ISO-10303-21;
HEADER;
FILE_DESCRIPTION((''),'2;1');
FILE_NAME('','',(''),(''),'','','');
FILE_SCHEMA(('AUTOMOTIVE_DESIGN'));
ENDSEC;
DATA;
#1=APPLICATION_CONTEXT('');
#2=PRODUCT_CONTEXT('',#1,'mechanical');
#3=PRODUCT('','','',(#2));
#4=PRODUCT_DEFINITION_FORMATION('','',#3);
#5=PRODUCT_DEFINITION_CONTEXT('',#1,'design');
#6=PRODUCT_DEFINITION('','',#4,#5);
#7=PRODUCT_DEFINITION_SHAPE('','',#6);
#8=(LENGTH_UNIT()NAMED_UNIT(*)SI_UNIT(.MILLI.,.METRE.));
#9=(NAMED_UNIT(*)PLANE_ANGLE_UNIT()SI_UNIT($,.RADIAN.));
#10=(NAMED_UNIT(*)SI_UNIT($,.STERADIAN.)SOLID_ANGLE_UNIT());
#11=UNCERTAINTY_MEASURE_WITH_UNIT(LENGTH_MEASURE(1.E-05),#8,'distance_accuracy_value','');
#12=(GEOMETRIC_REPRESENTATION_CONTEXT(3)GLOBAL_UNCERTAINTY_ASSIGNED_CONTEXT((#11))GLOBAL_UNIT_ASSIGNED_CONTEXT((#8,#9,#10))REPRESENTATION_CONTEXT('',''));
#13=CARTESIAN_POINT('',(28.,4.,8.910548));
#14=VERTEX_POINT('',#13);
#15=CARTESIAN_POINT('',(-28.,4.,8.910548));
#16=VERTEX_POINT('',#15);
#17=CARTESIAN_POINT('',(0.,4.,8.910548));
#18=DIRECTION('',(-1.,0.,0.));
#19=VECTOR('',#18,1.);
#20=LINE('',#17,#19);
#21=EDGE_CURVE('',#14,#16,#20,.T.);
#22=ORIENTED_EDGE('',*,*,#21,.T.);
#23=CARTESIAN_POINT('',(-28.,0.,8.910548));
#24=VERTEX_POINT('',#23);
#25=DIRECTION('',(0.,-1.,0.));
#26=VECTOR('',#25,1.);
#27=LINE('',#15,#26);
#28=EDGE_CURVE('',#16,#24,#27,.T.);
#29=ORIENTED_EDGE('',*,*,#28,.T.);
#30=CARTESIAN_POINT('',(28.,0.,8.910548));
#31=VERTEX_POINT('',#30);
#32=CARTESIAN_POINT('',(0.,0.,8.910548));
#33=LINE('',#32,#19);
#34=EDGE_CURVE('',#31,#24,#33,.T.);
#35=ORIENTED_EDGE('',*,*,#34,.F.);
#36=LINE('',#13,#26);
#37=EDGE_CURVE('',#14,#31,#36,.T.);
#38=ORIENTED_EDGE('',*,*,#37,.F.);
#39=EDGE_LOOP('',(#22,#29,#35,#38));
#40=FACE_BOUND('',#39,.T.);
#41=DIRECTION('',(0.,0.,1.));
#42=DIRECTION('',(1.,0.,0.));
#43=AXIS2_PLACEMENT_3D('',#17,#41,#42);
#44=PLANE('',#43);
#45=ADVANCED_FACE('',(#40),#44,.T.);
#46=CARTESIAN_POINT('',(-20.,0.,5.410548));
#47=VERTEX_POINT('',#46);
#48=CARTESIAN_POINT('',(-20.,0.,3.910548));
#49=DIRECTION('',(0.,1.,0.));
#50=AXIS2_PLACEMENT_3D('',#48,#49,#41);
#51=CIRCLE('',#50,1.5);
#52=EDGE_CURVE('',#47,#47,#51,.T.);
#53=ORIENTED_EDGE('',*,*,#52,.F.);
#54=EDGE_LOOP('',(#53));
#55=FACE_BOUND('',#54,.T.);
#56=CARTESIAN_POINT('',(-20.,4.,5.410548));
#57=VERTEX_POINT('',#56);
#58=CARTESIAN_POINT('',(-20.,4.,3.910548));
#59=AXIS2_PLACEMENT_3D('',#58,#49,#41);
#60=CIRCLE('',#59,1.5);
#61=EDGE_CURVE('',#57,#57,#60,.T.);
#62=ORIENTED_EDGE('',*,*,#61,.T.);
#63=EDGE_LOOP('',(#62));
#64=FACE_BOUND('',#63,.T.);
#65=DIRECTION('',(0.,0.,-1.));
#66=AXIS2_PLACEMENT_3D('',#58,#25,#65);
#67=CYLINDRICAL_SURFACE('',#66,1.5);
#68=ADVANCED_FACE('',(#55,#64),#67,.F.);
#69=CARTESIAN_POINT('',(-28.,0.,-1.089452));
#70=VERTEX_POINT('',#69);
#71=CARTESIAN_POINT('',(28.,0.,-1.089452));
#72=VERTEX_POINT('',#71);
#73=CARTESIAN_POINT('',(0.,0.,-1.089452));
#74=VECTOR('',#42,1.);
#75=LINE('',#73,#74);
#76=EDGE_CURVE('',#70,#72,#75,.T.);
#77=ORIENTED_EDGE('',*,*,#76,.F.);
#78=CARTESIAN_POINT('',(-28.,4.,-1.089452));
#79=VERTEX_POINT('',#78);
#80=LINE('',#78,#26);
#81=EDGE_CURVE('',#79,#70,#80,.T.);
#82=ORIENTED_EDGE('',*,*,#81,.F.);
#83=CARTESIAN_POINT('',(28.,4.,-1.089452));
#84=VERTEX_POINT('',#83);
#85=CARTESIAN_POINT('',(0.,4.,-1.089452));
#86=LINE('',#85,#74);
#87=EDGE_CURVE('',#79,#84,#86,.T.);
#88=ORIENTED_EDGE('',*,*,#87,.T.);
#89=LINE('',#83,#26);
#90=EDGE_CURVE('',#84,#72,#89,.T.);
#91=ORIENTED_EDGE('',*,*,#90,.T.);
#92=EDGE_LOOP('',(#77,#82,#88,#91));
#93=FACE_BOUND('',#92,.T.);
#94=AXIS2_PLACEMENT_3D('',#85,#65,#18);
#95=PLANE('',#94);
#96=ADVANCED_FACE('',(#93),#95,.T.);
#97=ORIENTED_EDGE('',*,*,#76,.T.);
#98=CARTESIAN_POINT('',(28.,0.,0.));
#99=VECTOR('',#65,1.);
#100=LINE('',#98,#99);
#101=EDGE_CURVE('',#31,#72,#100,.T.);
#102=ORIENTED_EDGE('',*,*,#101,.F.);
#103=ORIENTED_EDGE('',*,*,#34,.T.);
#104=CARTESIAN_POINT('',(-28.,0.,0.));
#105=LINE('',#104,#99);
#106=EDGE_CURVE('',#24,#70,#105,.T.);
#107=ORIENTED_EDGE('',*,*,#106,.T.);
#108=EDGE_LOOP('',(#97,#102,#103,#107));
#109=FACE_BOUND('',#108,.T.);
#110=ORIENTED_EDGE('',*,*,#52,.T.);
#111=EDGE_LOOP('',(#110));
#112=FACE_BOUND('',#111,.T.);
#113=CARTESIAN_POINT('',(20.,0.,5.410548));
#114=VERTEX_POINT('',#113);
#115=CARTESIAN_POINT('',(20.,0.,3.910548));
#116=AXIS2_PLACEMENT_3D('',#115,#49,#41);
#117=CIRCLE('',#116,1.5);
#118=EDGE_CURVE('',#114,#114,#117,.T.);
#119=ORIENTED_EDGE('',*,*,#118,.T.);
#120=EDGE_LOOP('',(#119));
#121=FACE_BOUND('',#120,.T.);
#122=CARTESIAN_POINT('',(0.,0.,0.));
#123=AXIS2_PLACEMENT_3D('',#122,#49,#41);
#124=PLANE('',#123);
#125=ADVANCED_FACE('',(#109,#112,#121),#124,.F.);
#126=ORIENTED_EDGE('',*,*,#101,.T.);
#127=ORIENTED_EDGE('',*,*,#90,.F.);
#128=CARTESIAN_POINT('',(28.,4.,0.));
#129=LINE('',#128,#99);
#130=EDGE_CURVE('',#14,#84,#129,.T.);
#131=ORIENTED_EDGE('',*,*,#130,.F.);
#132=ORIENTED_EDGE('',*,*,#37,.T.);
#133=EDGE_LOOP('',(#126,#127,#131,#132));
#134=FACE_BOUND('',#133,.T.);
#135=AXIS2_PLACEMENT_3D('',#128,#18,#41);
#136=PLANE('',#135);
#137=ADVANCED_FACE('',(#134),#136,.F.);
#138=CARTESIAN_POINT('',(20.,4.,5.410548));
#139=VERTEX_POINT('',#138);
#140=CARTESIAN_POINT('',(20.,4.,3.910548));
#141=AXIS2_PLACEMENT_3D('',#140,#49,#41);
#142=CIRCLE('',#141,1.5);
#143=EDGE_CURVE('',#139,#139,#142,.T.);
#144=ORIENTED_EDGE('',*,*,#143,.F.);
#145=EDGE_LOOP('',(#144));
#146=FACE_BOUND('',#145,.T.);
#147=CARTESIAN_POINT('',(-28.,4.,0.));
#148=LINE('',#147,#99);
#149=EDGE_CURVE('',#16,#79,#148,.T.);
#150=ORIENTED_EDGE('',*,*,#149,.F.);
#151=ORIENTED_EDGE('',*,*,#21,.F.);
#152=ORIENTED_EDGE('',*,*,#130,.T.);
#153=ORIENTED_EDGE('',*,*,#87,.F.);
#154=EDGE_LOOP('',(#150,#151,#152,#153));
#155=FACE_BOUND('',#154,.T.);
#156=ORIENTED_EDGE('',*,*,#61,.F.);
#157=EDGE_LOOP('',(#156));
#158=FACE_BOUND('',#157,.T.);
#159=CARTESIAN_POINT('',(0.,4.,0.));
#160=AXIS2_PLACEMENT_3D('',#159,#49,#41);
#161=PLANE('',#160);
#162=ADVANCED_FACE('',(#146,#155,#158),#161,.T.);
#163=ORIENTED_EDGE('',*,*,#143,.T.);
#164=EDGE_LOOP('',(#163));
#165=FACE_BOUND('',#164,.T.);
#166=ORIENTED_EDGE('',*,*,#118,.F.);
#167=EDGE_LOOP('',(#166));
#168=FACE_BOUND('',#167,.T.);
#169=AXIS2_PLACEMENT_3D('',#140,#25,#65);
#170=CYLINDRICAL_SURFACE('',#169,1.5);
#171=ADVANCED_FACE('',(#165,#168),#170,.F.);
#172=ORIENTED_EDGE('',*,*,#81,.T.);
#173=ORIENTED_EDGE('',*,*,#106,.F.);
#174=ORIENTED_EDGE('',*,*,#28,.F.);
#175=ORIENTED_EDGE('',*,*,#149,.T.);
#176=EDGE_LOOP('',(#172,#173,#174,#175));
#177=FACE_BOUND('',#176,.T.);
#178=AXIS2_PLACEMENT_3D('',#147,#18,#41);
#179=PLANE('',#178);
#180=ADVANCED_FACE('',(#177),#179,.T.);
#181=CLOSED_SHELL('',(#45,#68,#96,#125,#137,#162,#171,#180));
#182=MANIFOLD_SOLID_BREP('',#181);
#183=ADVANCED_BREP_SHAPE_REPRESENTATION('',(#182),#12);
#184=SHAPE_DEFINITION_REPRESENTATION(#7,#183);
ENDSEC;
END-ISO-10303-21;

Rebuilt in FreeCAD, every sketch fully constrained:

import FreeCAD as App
import Part
import Sketcher


def add_polygon(sketch, points):
    """Adds a closed chain of lines whose ends are joined by coincident constraints."""
    first, n = sketch.GeometryCount, len(points)
    for a, b in zip(points, points[1:] + points[:1]):
        sketch.addGeometry(Part.LineSegment(App.Vector(*a, 0), App.Vector(*b, 0)), False)
    for i in range(n):
        sketch.addConstraint(Sketcher.Constraint("Coincident", first + i, 2, first + (i + 1) % n, 1))

doc = App.newDocument("Part")
body = doc.addObject("PartDesign::Body", "Body")

# Sketch on XZ plane
sketch1 = body.newObject("Sketcher::SketchObject", "Sketch")
sketch1.AttachmentSupport = (doc.getObject("XZ_Plane"), [""])
sketch1.MapMode = "FlatFace"
add_polygon(sketch1, [(-28, -1.1), (-28, 8.9), (28, 8.9), (28, -1.1)])  # lines 0-3
sketch1.addGeometry(Part.Circle(App.Vector(-20, 3.9, 0), App.Vector(0, 0, 1), 1.5), False)  # 4
sketch1.addGeometry(Part.Circle(App.Vector(20, 3.9, 0), App.Vector(0, 0, 1), 1.5), False)  # 5
sketch1.addConstraint([
    Sketcher.Constraint("Vertical", 0),
    Sketcher.Constraint("Horizontal", 1),
    Sketcher.Constraint("Vertical", 2),
    Sketcher.Constraint("Horizontal", 3),
    Sketcher.Constraint("Equal", 4, 5),
    Sketcher.Constraint("Symmetric", 4, 3, 5, 3, -2),
    Sketcher.Constraint("Diameter", 4, 3.0),
    Sketcher.Constraint("DistanceX", 1, 1, 1, 2, 56.0),
    Sketcher.Constraint("DistanceY", 0, 1, 0, 2, 10.0),
    Sketcher.Constraint("DistanceX", 4, 3, -1, 1, 20.0),
    Sketcher.Constraint("DistanceX", 0, 2, -1, 1, 28.0),
    Sketcher.Constraint("DistanceY", 4, 3, 0, 2, 5.0),
    Sketcher.Constraint("DistanceY", -1, 1, 4, 3, 3.910548),
])
pad1 = body.newObject("PartDesign::Pad", "Pad")
pad1.Profile = sketch1
pad1.Length = 4
pad1.Reversed = True

doc.recompute()
